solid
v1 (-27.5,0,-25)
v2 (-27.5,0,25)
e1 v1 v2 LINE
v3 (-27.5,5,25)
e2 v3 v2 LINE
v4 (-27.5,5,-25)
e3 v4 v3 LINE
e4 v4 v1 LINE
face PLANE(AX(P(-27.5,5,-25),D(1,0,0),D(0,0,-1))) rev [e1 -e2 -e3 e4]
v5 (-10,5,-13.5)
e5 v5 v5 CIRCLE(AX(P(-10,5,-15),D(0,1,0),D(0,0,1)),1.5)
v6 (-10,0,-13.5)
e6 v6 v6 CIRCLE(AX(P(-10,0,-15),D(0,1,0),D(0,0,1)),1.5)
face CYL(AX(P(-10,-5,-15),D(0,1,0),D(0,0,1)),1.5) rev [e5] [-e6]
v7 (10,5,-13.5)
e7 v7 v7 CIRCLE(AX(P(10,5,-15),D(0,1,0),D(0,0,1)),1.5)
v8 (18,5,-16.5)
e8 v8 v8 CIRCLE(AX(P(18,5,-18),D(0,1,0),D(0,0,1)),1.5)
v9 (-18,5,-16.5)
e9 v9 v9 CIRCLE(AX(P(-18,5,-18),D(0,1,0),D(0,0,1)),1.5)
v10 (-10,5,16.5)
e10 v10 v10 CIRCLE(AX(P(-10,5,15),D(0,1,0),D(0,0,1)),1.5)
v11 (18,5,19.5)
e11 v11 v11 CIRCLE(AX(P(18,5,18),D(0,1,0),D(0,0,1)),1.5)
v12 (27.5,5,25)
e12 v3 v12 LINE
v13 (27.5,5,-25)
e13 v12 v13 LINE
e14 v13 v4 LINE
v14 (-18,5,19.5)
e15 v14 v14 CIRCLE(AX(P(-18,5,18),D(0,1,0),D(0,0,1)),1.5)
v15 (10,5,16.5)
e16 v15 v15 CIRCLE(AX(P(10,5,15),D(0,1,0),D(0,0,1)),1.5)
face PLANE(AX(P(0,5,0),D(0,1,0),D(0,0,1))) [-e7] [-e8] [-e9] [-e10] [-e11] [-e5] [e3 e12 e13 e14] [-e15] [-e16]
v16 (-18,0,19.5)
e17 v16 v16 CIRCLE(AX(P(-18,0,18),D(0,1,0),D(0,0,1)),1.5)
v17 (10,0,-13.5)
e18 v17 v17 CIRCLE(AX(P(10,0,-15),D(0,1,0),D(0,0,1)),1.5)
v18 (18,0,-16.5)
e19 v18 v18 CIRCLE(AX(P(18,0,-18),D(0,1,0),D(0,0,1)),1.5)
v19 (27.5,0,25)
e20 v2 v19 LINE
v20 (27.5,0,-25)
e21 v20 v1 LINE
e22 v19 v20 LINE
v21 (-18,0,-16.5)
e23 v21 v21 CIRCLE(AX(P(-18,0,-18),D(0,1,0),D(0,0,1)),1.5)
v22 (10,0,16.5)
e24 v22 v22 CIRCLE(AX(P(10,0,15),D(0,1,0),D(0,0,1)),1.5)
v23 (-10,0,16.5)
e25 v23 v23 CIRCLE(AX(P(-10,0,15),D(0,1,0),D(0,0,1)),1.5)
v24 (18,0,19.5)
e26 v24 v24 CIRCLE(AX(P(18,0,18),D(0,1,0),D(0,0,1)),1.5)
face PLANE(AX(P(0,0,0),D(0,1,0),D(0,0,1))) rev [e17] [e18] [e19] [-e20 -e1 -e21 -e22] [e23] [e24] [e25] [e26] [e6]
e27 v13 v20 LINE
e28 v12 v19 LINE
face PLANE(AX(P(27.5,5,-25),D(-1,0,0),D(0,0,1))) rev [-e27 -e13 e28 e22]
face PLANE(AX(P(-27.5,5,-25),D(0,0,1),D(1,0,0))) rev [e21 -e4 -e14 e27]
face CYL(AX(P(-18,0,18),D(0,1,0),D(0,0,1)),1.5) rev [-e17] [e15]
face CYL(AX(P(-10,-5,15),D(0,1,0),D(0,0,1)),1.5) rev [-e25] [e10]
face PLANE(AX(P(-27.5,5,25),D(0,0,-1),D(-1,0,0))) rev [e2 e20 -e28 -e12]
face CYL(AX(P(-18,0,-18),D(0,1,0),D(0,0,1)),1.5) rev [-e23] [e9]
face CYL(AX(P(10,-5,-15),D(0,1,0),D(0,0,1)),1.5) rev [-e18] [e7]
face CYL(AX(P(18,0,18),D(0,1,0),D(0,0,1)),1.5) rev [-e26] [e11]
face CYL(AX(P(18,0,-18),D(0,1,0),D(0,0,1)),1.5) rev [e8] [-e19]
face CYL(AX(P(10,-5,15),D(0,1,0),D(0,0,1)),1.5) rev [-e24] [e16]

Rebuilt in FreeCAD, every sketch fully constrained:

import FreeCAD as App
import Part
import Sketcher

V = App.Vector


def add_polygon(sketch, points):
    """Adds a closed chain of lines whose ends are joined by coincident constraints."""
    first, n = sketch.GeometryCount, len(points)
    for a, b in zip(points, points[1:] + points[:1]):
        sketch.addGeometry(Part.LineSegment(App.Vector(*a, 0), App.Vector(*b, 0)), False)
    for i in range(n):
        sketch.addConstraint(Sketcher.Constraint("Coincident", first + i, 2, first + (i + 1) % n, 1))

doc = App.newDocument("Part")
body = doc.addObject("PartDesign::Body", "Body")

sketch1 = body.newObject("Sketcher::SketchObject", "Sketch")
sketch1.AttachmentSupport = (doc.getObject("XZ_Plane"), [""])
sketch1.MapMode = "FlatFace"
add_polygon(sketch1, [(-28, -25), (-28, 25), (28, 25), (28, -25)])
sketch1.addConstraint([
    Sketcher.Constraint("Vertical", 0),
    Sketcher.Constraint("Horizontal", 1),
    Sketcher.Constraint("Vertical", 2),
    Sketcher.Constraint("Horizontal", 3),
    Sketcher.Constraint("Symmetric", 0, 2, 2, 2, -1, 1),
    Sketcher.Constraint("DistanceX", 1, 1, 1, 2, 55.0),
    Sketcher.Constraint("DistanceY", 0, 1, 0, 2, 50.0),
])
pad1 = body.newObject("PartDesign::Pad", "Pad")
pad1.Profile = sketch1
pad1.Length = 5
pad1.Reversed = True

sketch2 = body.newObject("Sketcher::SketchObject", "Sketch001")
sketch2.AttachmentSupport = (doc.getObject("XZ_Plane"), [""])
sketch2.MapMode = "FlatFace"
sketch2.AttachmentOffset = App.Placement(V(0, 0, -5), App.Rotation())
sketch2.addGeometry([
    Part.Circle(V(-18, -18, 0), V(0, 0, 1), 1.5),
    Part.Circle(V(18, -18, 0), V(0, 0, 1), 1.5),
    Part.Circle(V(18, 18, 0), V(0, 0, 1), 1.5),
    Part.Circle(V(-18, 18, 0), V(0, 0, 1), 1.5),
], False)
sketch2.addConstraint([
    Sketcher.Constraint("Equal", 0, 1),
    Sketcher.Constraint("Equal", 1, 2),
    Sketcher.Constraint("Equal", 2, 3),
    Sketcher.Constraint("Symmetric", 0, 3, 2, 3, -1, 1),
    Sketcher.Constraint("Symmetric", 1, 3, 3, 3, -1, 1),
    Sketcher.Constraint("Symmetric", 0, 3, 1, 3, -2),
    Sketcher.Constraint("Diameter", 0, 3.0),
    Sketcher.Constraint("DistanceX", 0, 3, -1, 1, 18.0),
    Sketcher.Constraint("DistanceY", 0, 3, -1, 1, 18.0),
])
pocket1 = body.newObject("PartDesign::Pocket", "Pocket")
pocket1.Profile = sketch2
pocket1.Type = "ThroughAll"
pocket1.Reversed = True

sketch3 = body.newObject("Sketcher::SketchObject", "Sketch002")
sketch3.AttachmentSupport = (doc.getObject("XZ_Plane"), [""])
sketch3.MapMode = "FlatFace"
sketch3.AttachmentOffset = App.Placement(V(0, 0, -5), App.Rotation())
sketch3.addGeometry([
    Part.Circle(V(-10, -15, 0), V(0, 0, 1), 1.5),
    Part.Circle(V(10, -15, 0), V(0, 0, 1), 1.5),
    Part.Circle(V(10, 15, 0), V(0, 0, 1), 1.5),
    Part.Circle(V(-10, 15, 0), V(0, 0, 1), 1.5),
], False)
sketch3.addConstraint([
    Sketcher.Constraint("Equal", 0, 1),
    Sketcher.Constraint("Equal", 1, 2),
    Sketcher.Constraint("Equal", 2, 3),
    Sketcher.Constraint("Symmetric", 0, 3, 2, 3, -1, 1),
    Sketcher.Constraint("Symmetric", 1, 3, 3, 3, -1, 1),
    Sketcher.Constraint("Symmetric", 0, 3, 1, 3, -2),
    Sketcher.Constraint("Diameter", 0, 3.0),
    Sketcher.Constraint("DistanceX", 0, 3, -1, 1, 10.0),
    Sketcher.Constraint("DistanceY", 0, 3, -1, 1, 15.0),
])
pocket2 = body.newObject("PartDesign::Pocket", "Pocket001")
pocket2.Profile = sketch3
pocket2.Length = 10
pocket2.Reversed = True

doc.recompute()
